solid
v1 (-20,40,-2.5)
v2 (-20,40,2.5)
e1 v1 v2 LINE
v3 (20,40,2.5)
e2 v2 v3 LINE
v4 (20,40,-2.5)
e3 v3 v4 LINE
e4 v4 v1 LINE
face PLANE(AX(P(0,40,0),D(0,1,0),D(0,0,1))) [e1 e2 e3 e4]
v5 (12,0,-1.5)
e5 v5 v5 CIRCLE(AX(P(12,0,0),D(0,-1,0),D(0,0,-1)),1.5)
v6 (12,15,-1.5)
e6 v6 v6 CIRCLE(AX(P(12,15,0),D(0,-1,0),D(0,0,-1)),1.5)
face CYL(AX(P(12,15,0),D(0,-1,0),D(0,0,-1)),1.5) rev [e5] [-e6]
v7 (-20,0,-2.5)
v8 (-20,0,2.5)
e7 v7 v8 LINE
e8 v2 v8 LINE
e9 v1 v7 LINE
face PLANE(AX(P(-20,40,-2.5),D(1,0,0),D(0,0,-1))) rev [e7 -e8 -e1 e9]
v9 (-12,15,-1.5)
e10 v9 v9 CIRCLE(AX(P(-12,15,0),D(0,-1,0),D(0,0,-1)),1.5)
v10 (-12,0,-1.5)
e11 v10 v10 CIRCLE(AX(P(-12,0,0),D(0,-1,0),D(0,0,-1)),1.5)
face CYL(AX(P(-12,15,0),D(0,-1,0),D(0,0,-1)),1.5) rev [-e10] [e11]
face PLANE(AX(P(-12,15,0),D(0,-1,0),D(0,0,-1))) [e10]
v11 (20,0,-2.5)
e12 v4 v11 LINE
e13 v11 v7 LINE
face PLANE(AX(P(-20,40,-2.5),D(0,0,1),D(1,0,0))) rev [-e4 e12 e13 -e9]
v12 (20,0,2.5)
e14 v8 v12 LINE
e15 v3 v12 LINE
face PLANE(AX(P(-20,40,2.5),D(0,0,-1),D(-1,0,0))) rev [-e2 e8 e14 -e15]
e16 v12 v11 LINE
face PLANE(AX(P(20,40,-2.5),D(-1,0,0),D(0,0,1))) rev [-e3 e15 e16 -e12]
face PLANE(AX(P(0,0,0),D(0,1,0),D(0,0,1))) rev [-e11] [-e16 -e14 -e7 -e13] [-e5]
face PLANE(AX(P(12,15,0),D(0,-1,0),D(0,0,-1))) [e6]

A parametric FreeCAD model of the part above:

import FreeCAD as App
import Part
import Sketcher
from FreeCAD import Vector

doc = App.newDocument("Part")
body = doc.addObject("PartDesign::Body", "Body")

# Sketch on XZ plane
sketch1 = body.newObject("Sketcher::SketchObject", "Sketch")
sketch1.AttachmentSupport = (doc.getObject("XZ_Plane"), [""])
sketch1.MapMode = "FlatFace"
sketch1.addGeometry([
    Part.LineSegment(Vector(-20, -2, 0), Vector(-20, 2, 0)),
    Part.LineSegment(Vector(-20, 2, 0), Vector(20, 2, 0)),
    Part.LineSegment(Vector(20, 2, 0), Vector(20, -2, 0)),
    Part.LineSegment(Vector(20, -2, 0), Vector(-20, -2, 0)),
], False)
sketch1.addConstraint([
    Sketcher.Constraint("Coincident", 0, 2, 1, 1),
    Sketcher.Constraint("Coincident", 1, 2, 2, 1),
    Sketcher.Constraint("Coincident", 2, 2, 3, 1),
    Sketcher.Constraint("Coincident", 3, 2, 0, 1),
    Sketcher.Constraint("Vertical", 0),
    Sketcher.Constraint("Horizontal", 1),
    Sketcher.Constraint("Vertical", 2),
    Sketcher.Constraint("Horizontal", 3),
    Sketcher.Constraint("Symmetric", 0, 2, 2, 2, -1, 1),
    Sketcher.Constraint("DistanceX", 1, 1, 1, 2, 40.0),
    Sketcher.Constraint("DistanceY", 0, 1, 0, 2, 5.0),
])
pad1 = body.newObject("PartDesign::Pad", "Pad")
pad1.Profile = sketch1
pad1.Length = 40
pad1.Reversed = True

# Sketch on XZ plane
sketch2 = body.newObject("Sketcher::SketchObject", "Sketch001")
sketch2.AttachmentSupport = (doc.getObject("XZ_Plane"), [""])
sketch2.MapMode = "FlatFace"
sketch2.addGeometry([
    Part.Circle(Vector(-12, 0, 0), Vector(0, 0, 1), 1.5),
    Part.Circle(Vector(12, 0, 0), Vector(0, 0, 1), 1.5),
], False)
sketch2.addConstraint([
    Sketcher.Constraint("Equal", 0, 1),
    Sketcher.Constraint("Symmetric", 0, 3, 1, 3, -1, 1),
    Sketcher.Constraint("PointOnObject", 0, 3, -1),
    Sketcher.Constraint("Diameter", 0, 3.0),
    Sketcher.Constraint("DistanceX", 0, 3, -1, 1, 12.0),
])
pocket1 = body.newObject("PartDesign::Pocket", "Pocket")
pocket1.Profile = sketch2
pocket1.Length = 15

doc.recompute()
